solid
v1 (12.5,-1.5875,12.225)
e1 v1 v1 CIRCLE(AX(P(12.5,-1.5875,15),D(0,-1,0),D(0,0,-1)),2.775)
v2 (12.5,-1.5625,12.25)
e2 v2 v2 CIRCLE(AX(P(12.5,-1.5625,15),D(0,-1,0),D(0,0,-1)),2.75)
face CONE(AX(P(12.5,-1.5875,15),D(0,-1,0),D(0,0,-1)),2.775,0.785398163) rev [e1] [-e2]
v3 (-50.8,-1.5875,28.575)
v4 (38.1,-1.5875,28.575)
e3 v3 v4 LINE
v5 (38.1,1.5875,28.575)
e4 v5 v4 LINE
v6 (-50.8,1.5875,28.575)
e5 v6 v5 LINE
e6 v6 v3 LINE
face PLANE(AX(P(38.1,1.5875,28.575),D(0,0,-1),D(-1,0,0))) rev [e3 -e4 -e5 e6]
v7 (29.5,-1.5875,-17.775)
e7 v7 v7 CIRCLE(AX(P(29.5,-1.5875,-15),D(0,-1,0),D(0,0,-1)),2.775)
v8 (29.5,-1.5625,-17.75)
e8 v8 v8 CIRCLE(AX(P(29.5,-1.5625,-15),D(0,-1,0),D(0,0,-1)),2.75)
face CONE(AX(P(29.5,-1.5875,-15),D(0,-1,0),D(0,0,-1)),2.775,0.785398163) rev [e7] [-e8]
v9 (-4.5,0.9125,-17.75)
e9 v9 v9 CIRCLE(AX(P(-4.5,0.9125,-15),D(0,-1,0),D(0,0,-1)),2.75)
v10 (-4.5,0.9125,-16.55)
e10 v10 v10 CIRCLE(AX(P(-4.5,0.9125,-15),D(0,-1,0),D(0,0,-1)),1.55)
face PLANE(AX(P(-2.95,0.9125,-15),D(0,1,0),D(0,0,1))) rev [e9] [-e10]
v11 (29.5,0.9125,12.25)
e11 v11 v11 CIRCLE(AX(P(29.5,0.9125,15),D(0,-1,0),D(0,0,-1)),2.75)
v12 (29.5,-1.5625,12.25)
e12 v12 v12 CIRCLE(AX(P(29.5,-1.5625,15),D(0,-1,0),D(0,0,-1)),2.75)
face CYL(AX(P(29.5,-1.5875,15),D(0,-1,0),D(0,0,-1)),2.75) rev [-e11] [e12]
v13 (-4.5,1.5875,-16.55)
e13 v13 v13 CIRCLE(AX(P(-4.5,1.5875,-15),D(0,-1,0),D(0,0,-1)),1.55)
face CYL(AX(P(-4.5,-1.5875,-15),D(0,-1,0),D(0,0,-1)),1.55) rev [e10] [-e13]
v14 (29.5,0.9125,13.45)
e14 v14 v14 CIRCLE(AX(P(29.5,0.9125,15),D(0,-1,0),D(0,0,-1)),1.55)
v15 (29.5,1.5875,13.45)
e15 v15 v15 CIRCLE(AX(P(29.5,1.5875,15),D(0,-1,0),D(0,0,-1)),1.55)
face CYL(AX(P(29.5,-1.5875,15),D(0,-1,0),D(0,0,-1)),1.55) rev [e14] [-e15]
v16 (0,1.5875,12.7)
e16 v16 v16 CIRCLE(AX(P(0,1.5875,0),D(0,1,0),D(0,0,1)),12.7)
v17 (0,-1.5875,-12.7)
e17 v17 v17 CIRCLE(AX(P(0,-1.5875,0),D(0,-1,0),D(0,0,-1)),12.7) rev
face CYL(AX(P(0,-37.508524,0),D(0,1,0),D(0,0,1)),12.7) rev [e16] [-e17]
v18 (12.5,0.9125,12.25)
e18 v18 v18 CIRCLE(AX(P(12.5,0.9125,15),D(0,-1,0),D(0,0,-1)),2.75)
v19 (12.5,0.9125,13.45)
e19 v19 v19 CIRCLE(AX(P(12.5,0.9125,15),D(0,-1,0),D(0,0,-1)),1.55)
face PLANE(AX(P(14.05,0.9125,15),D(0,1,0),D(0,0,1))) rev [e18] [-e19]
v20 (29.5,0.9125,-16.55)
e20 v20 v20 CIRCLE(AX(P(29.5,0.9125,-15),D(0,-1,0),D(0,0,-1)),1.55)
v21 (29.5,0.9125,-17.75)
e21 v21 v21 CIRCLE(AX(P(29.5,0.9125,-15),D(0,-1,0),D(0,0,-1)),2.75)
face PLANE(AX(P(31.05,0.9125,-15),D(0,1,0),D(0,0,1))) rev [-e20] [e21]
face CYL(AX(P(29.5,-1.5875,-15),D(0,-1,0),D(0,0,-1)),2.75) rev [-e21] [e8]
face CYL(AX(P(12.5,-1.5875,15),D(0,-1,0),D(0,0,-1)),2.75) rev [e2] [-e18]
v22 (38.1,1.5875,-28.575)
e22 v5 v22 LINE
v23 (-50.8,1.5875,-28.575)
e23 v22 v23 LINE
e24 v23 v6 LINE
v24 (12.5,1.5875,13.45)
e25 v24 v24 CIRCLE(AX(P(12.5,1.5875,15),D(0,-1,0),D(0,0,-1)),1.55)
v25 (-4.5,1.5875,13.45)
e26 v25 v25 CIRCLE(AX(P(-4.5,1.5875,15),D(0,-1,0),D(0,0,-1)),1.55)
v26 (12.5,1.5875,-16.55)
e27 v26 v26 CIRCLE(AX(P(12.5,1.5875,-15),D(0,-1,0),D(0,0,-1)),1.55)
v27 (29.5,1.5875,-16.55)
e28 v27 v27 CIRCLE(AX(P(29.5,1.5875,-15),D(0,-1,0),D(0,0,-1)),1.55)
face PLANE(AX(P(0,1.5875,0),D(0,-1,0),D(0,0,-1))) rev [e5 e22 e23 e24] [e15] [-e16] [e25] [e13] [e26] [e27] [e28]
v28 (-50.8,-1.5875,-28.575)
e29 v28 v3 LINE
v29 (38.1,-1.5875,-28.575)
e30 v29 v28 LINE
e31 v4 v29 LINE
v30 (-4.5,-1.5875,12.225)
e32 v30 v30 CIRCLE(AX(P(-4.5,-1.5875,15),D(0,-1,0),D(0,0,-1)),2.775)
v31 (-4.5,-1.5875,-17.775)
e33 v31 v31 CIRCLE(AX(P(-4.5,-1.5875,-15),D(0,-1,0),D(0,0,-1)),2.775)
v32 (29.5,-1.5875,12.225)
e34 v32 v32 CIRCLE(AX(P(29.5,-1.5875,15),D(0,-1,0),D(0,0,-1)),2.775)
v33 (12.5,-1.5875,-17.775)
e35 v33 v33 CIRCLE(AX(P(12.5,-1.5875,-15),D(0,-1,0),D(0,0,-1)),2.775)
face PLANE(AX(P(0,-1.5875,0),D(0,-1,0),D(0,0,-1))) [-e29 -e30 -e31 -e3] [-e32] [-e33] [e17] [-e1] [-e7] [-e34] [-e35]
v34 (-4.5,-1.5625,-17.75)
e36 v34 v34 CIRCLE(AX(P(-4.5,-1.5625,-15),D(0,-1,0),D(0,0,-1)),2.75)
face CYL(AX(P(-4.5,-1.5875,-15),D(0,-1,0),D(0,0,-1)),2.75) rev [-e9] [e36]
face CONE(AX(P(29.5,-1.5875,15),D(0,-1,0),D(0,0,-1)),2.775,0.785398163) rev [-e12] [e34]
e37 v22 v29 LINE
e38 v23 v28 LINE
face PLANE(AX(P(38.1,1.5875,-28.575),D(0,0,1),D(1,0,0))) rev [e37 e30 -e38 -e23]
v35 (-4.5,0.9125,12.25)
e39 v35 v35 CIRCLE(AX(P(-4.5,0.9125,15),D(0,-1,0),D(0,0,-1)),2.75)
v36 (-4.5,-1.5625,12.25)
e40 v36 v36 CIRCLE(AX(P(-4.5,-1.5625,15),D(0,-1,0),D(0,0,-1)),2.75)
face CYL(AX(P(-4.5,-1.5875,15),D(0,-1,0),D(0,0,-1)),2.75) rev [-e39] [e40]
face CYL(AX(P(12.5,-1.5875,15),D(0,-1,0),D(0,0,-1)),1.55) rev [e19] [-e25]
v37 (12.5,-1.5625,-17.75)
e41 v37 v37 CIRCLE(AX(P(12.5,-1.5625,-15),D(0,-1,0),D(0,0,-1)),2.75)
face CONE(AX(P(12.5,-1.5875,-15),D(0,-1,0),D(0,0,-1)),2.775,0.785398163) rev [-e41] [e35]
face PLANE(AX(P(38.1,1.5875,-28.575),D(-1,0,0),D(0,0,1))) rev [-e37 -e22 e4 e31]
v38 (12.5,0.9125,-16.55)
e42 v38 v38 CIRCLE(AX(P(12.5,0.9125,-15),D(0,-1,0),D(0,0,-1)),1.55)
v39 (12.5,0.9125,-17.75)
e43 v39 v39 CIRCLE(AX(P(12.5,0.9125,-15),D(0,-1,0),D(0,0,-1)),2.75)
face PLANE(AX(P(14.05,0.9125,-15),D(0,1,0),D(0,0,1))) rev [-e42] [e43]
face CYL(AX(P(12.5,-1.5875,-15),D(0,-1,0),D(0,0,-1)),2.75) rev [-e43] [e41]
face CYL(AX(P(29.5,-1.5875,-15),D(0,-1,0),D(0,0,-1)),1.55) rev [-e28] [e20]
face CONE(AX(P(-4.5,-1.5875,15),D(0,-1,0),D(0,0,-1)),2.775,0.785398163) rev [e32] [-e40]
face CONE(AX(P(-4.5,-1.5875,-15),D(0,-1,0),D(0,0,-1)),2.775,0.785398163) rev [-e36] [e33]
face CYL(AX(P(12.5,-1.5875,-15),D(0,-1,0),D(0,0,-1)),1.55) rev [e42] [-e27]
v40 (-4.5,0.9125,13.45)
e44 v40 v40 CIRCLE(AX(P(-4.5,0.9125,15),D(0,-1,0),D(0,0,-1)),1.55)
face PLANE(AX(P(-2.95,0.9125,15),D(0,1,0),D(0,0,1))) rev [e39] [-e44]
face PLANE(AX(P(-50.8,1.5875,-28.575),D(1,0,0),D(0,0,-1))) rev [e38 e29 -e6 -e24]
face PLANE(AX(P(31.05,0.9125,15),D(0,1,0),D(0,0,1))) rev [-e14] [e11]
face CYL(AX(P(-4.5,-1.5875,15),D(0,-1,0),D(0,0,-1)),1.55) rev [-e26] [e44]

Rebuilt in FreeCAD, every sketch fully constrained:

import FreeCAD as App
import Part
import Sketcher
from FreeCAD import Vector
Q = App.Units.Quantity


def add_polygon(sketch, points):
    """Adds a closed chain of lines whose ends are joined by coincident constraints."""
    first, n = sketch.GeometryCount, len(points)
    for a, b in zip(points, points[1:] + points[:1]):
        sketch.addGeometry(Part.LineSegment(App.Vector(*a, 0), App.Vector(*b, 0)), False)
    for i in range(n):
        sketch.addConstraint(Sketcher.Constraint("Coincident", first + i, 2, first + (i + 1) % n, 1))

doc = App.newDocument("Part")
body = doc.addObject("PartDesign::Body", "Body")

# Sketch on XZ plane
sketch1 = body.newObject("Sketcher::SketchObject", "Sketch")
sketch1.AttachmentSupport = (doc.getObject("XZ_Plane"), [""])
sketch1.MapMode = "FlatFace"
add_polygon(sketch1, [(-51, -29), (-51, 29), (38, 29), (38, -29)])  # lines 0-3
sketch1.addConstraint([
    Sketcher.Constraint("Vertical", 0),
    Sketcher.Constraint("Horizontal", 1),
    Sketcher.Constraint("Vertical", 2),
    Sketcher.Constraint("Horizontal", 3),
    Sketcher.Constraint("DistanceX", 1, 1, 1, 2, Q("3.5 in")),
    Sketcher.Constraint("DistanceX", 0, 2, -1, 1, Q("2 in")),
    Sketcher.Constraint("DistanceY", 0, 1, 0, 2, Q("2.25 in")),
    Sketcher.Constraint("DistanceY", -1, 1, 0, 2, Q("1.125 in")),
])
pad1 = body.newObject("PartDesign::Pad", "Pad")
pad1.Profile = sketch1
pad1.Length = Q("0.125 in")
pad1.Midplane = True

# Sketch on XZ plane
sketch2 = body.newObject("Sketcher::SketchObject", "Sketch001")
sketch2.AttachmentSupport = (doc.getObject("XZ_Plane"), [""])
sketch2.MapMode = "FlatFace"
sketch2.AttachmentOffset = App.Placement(Vector(0, 0, -0.0625 * 25.4), App.Rotation())
sketch2.addGeometry(Part.Circle(Vector(0, 0, 0), Vector(0, 0, 1), 13), False)
sketch2.addConstraint([
    Sketcher.Constraint("Coincident", 0, 3, -1, 1),
    Sketcher.Constraint("Diameter", 0, Q("1 in")),
])
pocket1 = body.newObject("PartDesign::Pocket", "Pocket")
pocket1.Profile = sketch2
pocket1.Length = Q("0.125 in")
pocket1.Reversed = True

# Sketch on YZ plane
sketch3 = body.newObject("Sketcher::SketchObject", "Sketch002")
sketch3.AttachmentSupport = (doc.getObject("YZ_Plane"), [""])
sketch3.MapMode = "FlatFace"
sketch3.AttachmentOffset = App.Placement(Vector(0, 0, 29.5), App.Rotation())
add_polygon(sketch3, [(151.744, -15), (-1.587, -15), (-1.587, -17.775), (-1.562, -17.75), (0.912, -17.75), (0.912, -16.55), (150.812, -16.55)])  # lines 0-6
sketch3.addGeometry(Part.LineSegment(Vector(-1.587, -15, 0), Vector(151.744, -15, 0)), True)  # axis
sketch3.addConstraint([
    Sketcher.Constraint("Horizontal", 0),
    Sketcher.Constraint("Vertical", 1),
    Sketcher.Constraint("Horizontal", 3),
    Sketcher.Constraint("Vertical", 4),
    Sketcher.Constraint("Horizontal", 5),
    Sketcher.Constraint("Horizontal", 7),
    Sketcher.Constraint("Coincident", 7, 1, 0, 2),
    Sketcher.Constraint("Equal", 0, 7),
    Sketcher.Constraint("Angle", 2, Q("45 deg")),
    Sketcher.Constraint("Angle", 6, Q("59 deg")),
    Sketcher.Constraint("DistanceX", 1, 2, 5, 2, Q("6 in")),
    Sketcher.Constraint("DistanceX", 0, 2, -1, 1, Q("0.0625 in")),
    Sketcher.Constraint("DistanceX", 3, 1, 3, 2, 2.475),
    Sketcher.Constraint("DistanceX", 5, 1, 5, 2, 149.9),
    Sketcher.Constraint("DistanceY", 1, 2, 1, 1, 2.775),
    Sketcher.Constraint("DistanceY", 4, 1, 4, 2, 1.2),
    Sketcher.Constraint("DistanceY", 0, 2, -1, 1, 15.0),
])
groove = body.newObject("PartDesign::Groove", "Groove")
groove.Profile = sketch3
groove.ReferenceAxis = (sketch3, ["Axis0"])
groove.Angle = 360
doc.recompute()

linearpattern = body.newObject("PartDesign::LinearPattern", "LinearPattern")
linearpattern.Originals = [groove]
linearpattern.Direction = (doc.getObject("X_Axis"), [""])
linearpattern.Mode = "offset"
linearpattern.Offset = 17
linearpattern.Occurrences = 2
linearpattern.Reversed = True
body.Tip = linearpattern
doc.recompute()

linearpattern2 = body.newObject("PartDesign::LinearPattern", "LinearPattern001")
linearpattern2.Originals = [groove]
linearpattern2.Direction = (doc.getObject("X_Axis"), [""])
linearpattern2.Mode = "offset"
linearpattern2.Offset = 34
linearpattern2.Occurrences = 2
linearpattern2.Reversed = True
body.Tip = linearpattern2
doc.recompute()

linearpattern3 = body.newObject("PartDesign::LinearPattern", "LinearPattern002")
linearpattern3.Originals = [groove]
linearpattern3.Direction = (doc.getObject("Z_Axis"), [""])
linearpattern3.Mode = "offset"
linearpattern3.Offset = 30
linearpattern3.Occurrences = 2
body.Tip = linearpattern3
doc.recompute()

datumline = body.newObject("PartDesign::Line", "DatumLine")
datumline.Placement = App.Placement(Vector(0, 0, 0), App.Rotation(Vector(0, 0, 1), Vector(-0.493012572, 0, 0.870022186)))
linearpattern4 = body.newObject("PartDesign::LinearPattern", "LinearPattern003")
linearpattern4.Originals = [groove]
linearpattern4.Direction = (datumline, [""])
linearpattern4.Mode = "offset"
linearpattern4.Offset = 34.481879
linearpattern4.Occurrences = 2
body.Tip = linearpattern4
doc.recompute()

datumline2 = body.newObject("PartDesign::Line", "DatumLine001")
datumline2.Placement = App.Placement(Vector(0, 0, 0), App.Rotation(Vector(0, 0, 1), Vector(-0.749837855, 0, 0.661621637)))
linearpattern5 = body.newObject("PartDesign::LinearPattern", "LinearPattern004")
linearpattern5.Originals = [groove]
linearpattern5.Direction = (datumline2, [""])
linearpattern5.Mode = "offset"
linearpattern5.Offset = 45.343136
linearpattern5.Occurrences = 2
body.Tip = linearpattern5

doc.recompute()
